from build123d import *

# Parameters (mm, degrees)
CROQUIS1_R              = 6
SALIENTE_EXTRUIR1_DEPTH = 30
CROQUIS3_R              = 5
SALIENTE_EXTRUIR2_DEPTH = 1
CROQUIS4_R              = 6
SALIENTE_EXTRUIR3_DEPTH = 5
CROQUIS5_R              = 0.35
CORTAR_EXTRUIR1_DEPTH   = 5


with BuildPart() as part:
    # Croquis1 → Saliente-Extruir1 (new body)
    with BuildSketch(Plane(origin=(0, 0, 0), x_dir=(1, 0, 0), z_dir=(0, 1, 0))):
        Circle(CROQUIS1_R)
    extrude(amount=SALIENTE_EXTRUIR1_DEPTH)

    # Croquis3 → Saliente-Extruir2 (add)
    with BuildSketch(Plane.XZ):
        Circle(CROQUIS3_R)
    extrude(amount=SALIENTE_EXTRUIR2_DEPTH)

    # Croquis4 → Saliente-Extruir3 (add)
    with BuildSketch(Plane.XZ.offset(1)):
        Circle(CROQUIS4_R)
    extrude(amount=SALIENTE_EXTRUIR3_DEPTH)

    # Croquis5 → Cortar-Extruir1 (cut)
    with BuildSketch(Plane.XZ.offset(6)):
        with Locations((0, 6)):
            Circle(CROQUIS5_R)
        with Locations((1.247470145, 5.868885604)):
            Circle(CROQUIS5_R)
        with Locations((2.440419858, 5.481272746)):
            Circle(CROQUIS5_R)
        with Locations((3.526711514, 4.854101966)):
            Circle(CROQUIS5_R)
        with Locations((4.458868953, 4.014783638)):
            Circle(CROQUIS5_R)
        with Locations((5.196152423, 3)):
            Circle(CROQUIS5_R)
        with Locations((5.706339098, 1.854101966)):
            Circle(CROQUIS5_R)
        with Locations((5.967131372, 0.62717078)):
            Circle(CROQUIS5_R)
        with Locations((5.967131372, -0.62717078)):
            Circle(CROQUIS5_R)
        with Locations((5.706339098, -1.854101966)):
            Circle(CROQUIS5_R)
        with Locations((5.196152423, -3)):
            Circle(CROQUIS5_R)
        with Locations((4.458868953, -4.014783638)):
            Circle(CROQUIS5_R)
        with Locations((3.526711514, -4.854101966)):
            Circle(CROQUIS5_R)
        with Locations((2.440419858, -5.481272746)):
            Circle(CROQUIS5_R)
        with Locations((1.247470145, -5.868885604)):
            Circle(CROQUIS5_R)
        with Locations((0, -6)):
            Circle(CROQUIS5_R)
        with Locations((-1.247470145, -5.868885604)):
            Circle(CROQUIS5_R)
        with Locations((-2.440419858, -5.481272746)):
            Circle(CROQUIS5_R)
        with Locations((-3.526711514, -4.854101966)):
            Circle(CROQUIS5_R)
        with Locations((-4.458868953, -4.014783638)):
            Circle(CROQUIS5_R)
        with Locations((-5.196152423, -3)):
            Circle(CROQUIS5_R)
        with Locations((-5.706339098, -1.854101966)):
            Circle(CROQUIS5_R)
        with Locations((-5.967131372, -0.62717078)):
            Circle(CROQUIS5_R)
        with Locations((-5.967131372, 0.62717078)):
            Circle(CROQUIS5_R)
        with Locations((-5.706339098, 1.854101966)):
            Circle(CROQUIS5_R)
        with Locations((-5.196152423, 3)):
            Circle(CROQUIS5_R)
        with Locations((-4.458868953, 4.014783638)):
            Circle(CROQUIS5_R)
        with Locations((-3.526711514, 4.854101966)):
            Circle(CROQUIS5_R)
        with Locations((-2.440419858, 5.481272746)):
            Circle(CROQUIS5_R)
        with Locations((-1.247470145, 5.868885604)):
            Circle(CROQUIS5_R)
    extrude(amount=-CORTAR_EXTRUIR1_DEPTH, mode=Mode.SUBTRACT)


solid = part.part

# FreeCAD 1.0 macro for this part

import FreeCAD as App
import Part
import Sketcher
from FreeCAD import Vector
Q = App.Units.Quantity

doc = App.newDocument("Part")
body = doc.addObject("PartDesign::Body", "Body")

sketch1 = body.newObject("Sketcher::SketchObject", "Sketch")
sketch1.AttachmentSupport = (doc.getObject("XZ_Plane"), [""])
sketch1.MapMode = "FlatFace"
sketch1.addGeometry(Part.Circle(Vector(0, 0, 0), Vector(0, 0, 1), 6), False)
sketch1.addConstraint(Sketcher.Constraint("Coincident", 0, 3, -1, 1))
sketch1.addConstraint(Sketcher.Constraint("Diameter", 0, Q("12 mm")))
pad1 = body.newObject("PartDesign::Pad", "Pad")
pad1.Profile = sketch1
pad1.Length = 30
pad1.Reversed = True

sketch2 = body.newObject("Sketcher::SketchObject", "Sketch001")
sketch2.AttachmentSupport = (doc.getObject("XZ_Plane"), [""])
sketch2.MapMode = "FlatFace"
sketch2.addGeometry(Part.Circle(Vector(0, 0, 0), Vector(0, 0, 1), 5), False)
sketch2.addConstraint(Sketcher.Constraint("Coincident", 0, 3, -1, 1))
sketch2.addConstraint(Sketcher.Constraint("Diameter", 0, Q("10 mm")))
pad2 = body.newObject("PartDesign::Pad", "Pad001")
pad2.Profile = sketch2
pad2.Length = 1

sketch3 = body.newObject("Sketcher::SketchObject", "Sketch002")
sketch3.AttachmentSupport = (doc.getObject("XZ_Plane"), [""])
sketch3.MapMode = "FlatFace"
sketch3.AttachmentOffset = App.Placement(Vector(0, 0, 1), App.Rotation())
sketch3.addGeometry(Part.Circle(Vector(0, 0, 0), Vector(0, 0, 1), 6), False)
sketch3.addConstraint(Sketcher.Constraint("Coincident", 0, 3, -1, 1))
sketch3.addConstraint(Sketcher.Constraint("Diameter", 0, Q("12 mm")))
pad3 = body.newObject("PartDesign::Pad", "Pad002")
pad3.Profile = sketch3
pad3.Length = 5

sketch4 = body.newObject("Sketcher::SketchObject", "Sketch003")
sketch4.AttachmentSupport = (doc.getObject("XZ_Plane"), [""])
sketch4.MapMode = "FlatFace"
sketch4.AttachmentOffset = App.Placement(Vector(0, 0, 6), App.Rotation())
sketch4.addGeometry(Part.Circle(Vector(0, 6, 0), Vector(0, 0, 1), 0.35), False)
sketch4.addGeometry(Part.Circle(Vector(1.25, 5.87, 0), Vector(0, 0, 1), 0.35), False)
sketch4.addGeometry(Part.Circle(Vector(2.44, 5.48, 0), Vector(0, 0, 1), 0.35), False)
sketch4.addGeometry(Part.Circle(Vector(3.53, 4.85, 0), Vector(0, 0, 1), 0.35), False)
sketch4.addGeometry(Part.Circle(Vector(4.46, 4.01, 0), Vector(0, 0, 1), 0.35), False)
sketch4.addGeometry(Part.Circle(Vector(5.2, 3, 0), Vector(0, 0, 1), 0.35), False)
sketch4.addGeometry(Part.Circle(Vector(5.71, 1.85, 0), Vector(0, 0, 1), 0.35), False)
sketch4.addGeometry(Part.Circle(Vector(5.97, 0.63, 0), Vector(0, 0, 1), 0.35), False)
sketch4.addGeometry(Part.Circle(Vector(5.97, -0.63, 0), Vector(0, 0, 1), 0.35), False)
sketch4.addGeometry(Part.Circle(Vector(5.71, -1.85, 0), Vector(0, 0, 1), 0.35), False)
sketch4.addGeometry(Part.Circle(Vector(5.2, -3, 0), Vector(0, 0, 1), 0.35), False)
sketch4.addGeometry(Part.Circle(Vector(4.46, -4.01, 0), Vector(0, 0, 1), 0.35), False)
sketch4.addGeometry(Part.Circle(Vector(3.53, -4.85, 0), Vector(0, 0, 1), 0.35), False)
sketch4.addGeometry(Part.Circle(Vector(2.44, -5.48, 0), Vector(0, 0, 1), 0.35), False)
sketch4.addGeometry(Part.Circle(Vector(1.25, -5.87, 0), Vector(0, 0, 1), 0.35), False)
sketch4.addGeometry(Part.Circle(Vector(0, -6, 0), Vector(0, 0, 1), 0.35), False)
sketch4.addGeometry(Part.Circle(Vector(-1.25, -5.87, 0), Vector(0, 0, 1), 0.35), False)
sketch4.addGeometry(Part.Circle(Vector(-2.44, -5.48, 0), Vector(0, 0, 1), 0.35), False)
sketch4.addGeometry(Part.Circle(Vector(-3.53, -4.85, 0), Vector(0, 0, 1), 0.35), False)
sketch4.addGeometry(Part.Circle(Vector(-4.46, -4.01, 0), Vector(0, 0, 1), 0.35), False)
sketch4.addGeometry(Part.Circle(Vector(-5.2, -3, 0), Vector(0, 0, 1), 0.35), False)
sketch4.addGeometry(Part.Circle(Vector(-5.71, -1.85, 0), Vector(0, 0, 1), 0.35), False)
sketch4.addGeometry(Part.Circle(Vector(-5.97, -0.63, 0), Vector(0, 0, 1), 0.35), False)
sketch4.addGeometry(Part.Circle(Vector(-5.97, 0.63, 0), Vector(0, 0, 1), 0.35), False)
sketch4.addGeometry(Part.Circle(Vector(-5.71, 1.85, 0), Vector(0, 0, 1), 0.35), False)
sketch4.addGeometry(Part.Circle(Vector(-5.2, 3, 0), Vector(0, 0, 1), 0.35), False)
sketch4.addGeometry(Part.Circle(Vector(-4.46, 4.01, 0), Vector(0, 0, 1), 0.35), False)
sketch4.addGeometry(Part.Circle(Vector(-3.53, 4.85, 0), Vector(0, 0, 1), 0.35), False)
sketch4.addGeometry(Part.Circle(Vector(-2.44, 5.48, 0), Vector(0, 0, 1), 0.35), False)
sketch4.addGeometry(Part.Circle(Vector(-1.25, 5.87, 0), Vector(0, 0, 1), 0.35), False)
sketch4.addConstraint(Sketcher.Constraint("Equal", 0, 1))
sketch4.addConstraint(Sketcher.Constraint("Equal", 1, 2))
sketch4.addConstraint(Sketcher.Constraint("Equal", 2, 3))
sketch4.addConstraint(Sketcher.Constraint("Equal", 3, 4))
sketch4.addConstraint(Sketcher.Constraint("Equal", 4, 5))
sketch4.addConstraint(Sketcher.Constraint("Equal", 5, 6))
sketch4.addConstraint(Sketcher.Constraint("Equal", 6, 7))
sketch4.addConstraint(Sketcher.Constraint("Equal", 7, 8))
sketch4.addConstraint(Sketcher.Constraint("Equal", 8, 9))
sketch4.addConstraint(Sketcher.Constraint("Equal", 9, 10))
sketch4.addConstraint(Sketcher.Constraint("Equal", 10, 11))
sketch4.addConstraint(Sketcher.Constraint("Equal", 11, 12))
sketch4.addConstraint(Sketcher.Constraint("Equal", 12, 13))
sketch4.addConstraint(Sketcher.Constraint("Equal", 13, 14))
sketch4.addConstraint(Sketcher.Constraint("Equal", 14, 15))
sketch4.addConstraint(Sketcher.Constraint("Equal", 15, 16))
sketch4.addConstraint(Sketcher.Constraint("Equal", 16, 17))
sketch4.addConstraint(Sketcher.Constraint("Equal", 17, 18))
sketch4.addConstraint(Sketcher.Constraint("Equal", 18, 19))
sketch4.addConstraint(Sketcher.Constraint("Equal", 19, 20))
sketch4.addConstraint(Sketcher.Constraint("Equal", 20, 21))
sketch4.addConstraint(Sketcher.Constraint("Equal", 21, 22))
sketch4.addConstraint(Sketcher.Constraint("Equal", 22, 23))
sketch4.addConstraint(Sketcher.Constraint("Equal", 23, 24))
sketch4.addConstraint(Sketcher.Constraint("Equal", 24, 25))
sketch4.addConstraint(Sketcher.Constraint("Equal", 25, 26))
sketch4.addConstraint(Sketcher.Constraint("Equal", 26, 27))
sketch4.addConstraint(Sketcher.Constraint("Equal", 27, 28))
sketch4.addConstraint(Sketcher.Constraint("Equal", 28, 29))
sketch4.addConstraint(Sketcher.Constraint("Symmetric", 0, 3, 15, 3, -1, 1))
sketch4.addConstraint(Sketcher.Constraint("Symmetric", 1, 3, 16, 3, -1, 1))
sketch4.addConstraint(Sketcher.Constraint("Symmetric", 2, 3, 17, 3, -1, 1))
sketch4.addConstraint(Sketcher.Constraint("Symmetric", 3, 3, 18, 3, -1, 1))
sketch4.addConstraint(Sketcher.Constraint("Symmetric", 4, 3, 19, 3, -1, 1))
sketch4.addConstraint(Sketcher.Constraint("Symmetric", 5, 3, 20, 3, -1, 1))
sketch4.addConstraint(Sketcher.Constraint("Symmetric", 6, 3, 21, 3, -1, 1))
sketch4.addConstraint(Sketcher.Constraint("Symmetric", 7, 3, 22, 3, -1, 1))
sketch4.addConstraint(Sketcher.Constraint("Symmetric", 8, 3, 23, 3, -1, 1))
sketch4.addConstraint(Sketcher.Constraint("Symmetric", 9, 3, 24, 3, -1, 1))
sketch4.addConstraint(Sketcher.Constraint("Symmetric", 10, 3, 25, 3, -1, 1))
sketch4.addConstraint(Sketcher.Constraint("Symmetric", 11, 3, 26, 3, -1, 1))
sketch4.addConstraint(Sketcher.Constraint("Symmetric", 12, 3, 27, 3, -1, 1))
sketch4.addConstraint(Sketcher.Constraint("Symmetric", 13, 3, 28, 3, -1, 1))
sketch4.addConstraint(Sketcher.Constraint("Symmetric", 14, 3, 29, 3, -1, 1))
sketch4.addConstraint(Sketcher.Constraint("Symmetric", 14, 3, 16, 3, -2))
sketch4.addConstraint(Sketcher.Constraint("Symmetric", 13, 3, 17, 3, -2))
sketch4.addConstraint(Sketcher.Constraint("Symmetric", 12, 3, 18, 3, -2))
sketch4.addConstraint(Sketcher.Constraint("Symmetric", 11, 3, 19, 3, -2))
sketch4.addConstraint(Sketcher.Constraint("Symmetric", 10, 3, 20, 3, -2))
sketch4.addConstraint(Sketcher.Constraint("Symmetric", 9, 3, 21, 3, -2))
sketch4.addConstraint(Sketcher.Constraint("Symmetric", 8, 3, 22, 3, -2))
sketch4.addConstraint(Sketcher.Constraint("PointOnObject", 0, 3, -2))
sketch4.addConstraint(Sketcher.Constraint("Diameter", 0, Q("0.7 mm")))
sketch4.addConstraint(Sketcher.Constraint("DistanceY", -1, 1, 0, 3, Q("6 mm")))
sketch4.addConstraint(Sketcher.Constraint("DistanceY", -1, 1, 5, 3, Q("3 mm")))
sketch4.addConstraint(Sketcher.Constraint("DistanceY", 6, 3, 3, 3, Q("3 mm")))
sketch4.addConstraint(Sketcher.Constraint("DistanceY", -1, 1, 3, 3, Q("4.854102 mm")))
sketch4.addConstraint(Sketcher.Constraint("DistanceX", 1, 3, 4, 3, Q("3.211399 mm")))
sketch4.addConstraint(Sketcher.Constraint("DistanceY", 4, 3, 1, 3, Q("1.854102 mm")))
sketch4.addConstraint(Sketcher.Constraint("DistanceY", 7, 3, 2, 3, Q("4.854102 mm")))
sketch4.addConstraint(Sketcher.Constraint("DistanceX", -1, 1, 1, 3, Q("1.24747 mm")))
sketch4.addConstraint(Sketcher.Constraint("DistanceX", -1, 1, 2, 3, Q("2.44042 mm")))
sketch4.addConstraint(Sketcher.Constraint("DistanceX", -1, 1, 3, 3, Q("3.526712 mm")))
sketch4.addConstraint(Sketcher.Constraint("DistanceX", -1, 1, 6, 3, Q("5.706339 mm")))
sketch4.addConstraint(Sketcher.Constraint("DistanceX", -1, 1, 7, 3, Q("5.967131 mm")))
sketch4.addConstraint(Sketcher.Constraint("DistanceY", -1, 1, 7, 3, Q("0.627171 mm")))
sketch4.addConstraint(Sketcher.Constraint("DistanceY", 4, 3, 3, 3, Q("0.839318 mm")))
sketch4.addConstraint(Sketcher.Constraint("DistanceX", 3, 3, 5, 3, Q("1.669441 mm")))
pocket1 = body.newObject("PartDesign::Pocket", "Pocket")
pocket1.Profile = sketch4
pocket1.Length = 5

doc.recompute()
